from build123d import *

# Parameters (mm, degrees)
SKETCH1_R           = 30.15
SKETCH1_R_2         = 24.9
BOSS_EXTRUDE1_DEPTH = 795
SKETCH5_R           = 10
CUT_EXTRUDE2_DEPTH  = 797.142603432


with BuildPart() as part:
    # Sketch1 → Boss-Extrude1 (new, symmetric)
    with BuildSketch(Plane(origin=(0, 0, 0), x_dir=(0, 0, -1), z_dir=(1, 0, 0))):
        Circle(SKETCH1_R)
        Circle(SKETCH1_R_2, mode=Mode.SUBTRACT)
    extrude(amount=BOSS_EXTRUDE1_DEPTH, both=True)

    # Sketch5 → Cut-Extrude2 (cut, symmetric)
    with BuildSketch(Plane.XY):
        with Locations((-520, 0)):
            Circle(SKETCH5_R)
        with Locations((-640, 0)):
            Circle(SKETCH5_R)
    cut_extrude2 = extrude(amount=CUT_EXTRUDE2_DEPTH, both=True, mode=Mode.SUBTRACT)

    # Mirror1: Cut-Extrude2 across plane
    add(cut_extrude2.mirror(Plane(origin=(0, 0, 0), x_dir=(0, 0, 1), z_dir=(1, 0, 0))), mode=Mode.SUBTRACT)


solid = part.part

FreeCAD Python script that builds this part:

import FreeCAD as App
import Part
import Sketcher

doc = App.newDocument("Part")
body = doc.addObject("PartDesign::Body", "Body")

# Sketch on YZ plane
sketch1 = body.newObject("Sketcher::SketchObject", "Sketch")
sketch1.AttachmentSupport = (doc.getObject("YZ_Plane"), [""])
sketch1.MapMode = "FlatFace"
sketch1.addGeometry(Part.Circle(App.Vector(0, 0, 0), App.Vector(0, 0, 1), 30), False)
sketch1.addGeometry(Part.Circle(App.Vector(0, 0, 0), App.Vector(0, 0, 1), 25), False)
sketch1.addConstraint(Sketcher.Constraint("Coincident", 0, 3, -1, 1))
sketch1.addConstraint(Sketcher.Constraint("Coincident", 1, 3, -1, 1))
sketch1.addConstraint(Sketcher.Constraint("Diameter", 0, 60.3))
sketch1.addConstraint(Sketcher.Constraint("Diameter", 1, 49.8))
pad1 = body.newObject("PartDesign::Pad", "Pad")
pad1.Profile = sketch1
pad1.Length = 1590
pad1.Midplane = True

# Sketch on XY plane
sketch2 = body.newObject("Sketcher::SketchObject", "Sketch001")
sketch2.AttachmentSupport = (doc.getObject("XY_Plane"), [""])
sketch2.MapMode = "FlatFace"
sketch2.addGeometry(Part.Circle(App.Vector(-520, 0, 0), App.Vector(0, 0, 1), 10), False)
sketch2.addGeometry(Part.Circle(App.Vector(-640, 0, 0), App.Vector(0, 0, 1), 10), False)
sketch2.addConstraint(Sketcher.Constraint("Equal", 0, 1))
sketch2.addConstraint(Sketcher.Constraint("PointOnObject", 0, 3, -1))
sketch2.addConstraint(Sketcher.Constraint("PointOnObject", 1, 3, -1))
sketch2.addConstraint(Sketcher.Constraint("Diameter", 0, 20.0))
sketch2.addConstraint(Sketcher.Constraint("DistanceX", 0, 3, -1, 1, 520.0))
sketch2.addConstraint(Sketcher.Constraint("DistanceX", 1, 3, -1, 1, 640.0))
pocket1 = body.newObject("PartDesign::Pocket", "Pocket")
pocket1.Profile = sketch2
pocket1.Length = 1594.285207
pocket1.Midplane = True
doc.recompute()

mirrored = body.newObject("PartDesign::Mirrored", "Mirrored")
mirrored.Originals = [pocket1]
mirrored.MirrorPlane = (doc.getObject("YZ_Plane"), [""])
body.Tip = mirrored

doc.recompute()
